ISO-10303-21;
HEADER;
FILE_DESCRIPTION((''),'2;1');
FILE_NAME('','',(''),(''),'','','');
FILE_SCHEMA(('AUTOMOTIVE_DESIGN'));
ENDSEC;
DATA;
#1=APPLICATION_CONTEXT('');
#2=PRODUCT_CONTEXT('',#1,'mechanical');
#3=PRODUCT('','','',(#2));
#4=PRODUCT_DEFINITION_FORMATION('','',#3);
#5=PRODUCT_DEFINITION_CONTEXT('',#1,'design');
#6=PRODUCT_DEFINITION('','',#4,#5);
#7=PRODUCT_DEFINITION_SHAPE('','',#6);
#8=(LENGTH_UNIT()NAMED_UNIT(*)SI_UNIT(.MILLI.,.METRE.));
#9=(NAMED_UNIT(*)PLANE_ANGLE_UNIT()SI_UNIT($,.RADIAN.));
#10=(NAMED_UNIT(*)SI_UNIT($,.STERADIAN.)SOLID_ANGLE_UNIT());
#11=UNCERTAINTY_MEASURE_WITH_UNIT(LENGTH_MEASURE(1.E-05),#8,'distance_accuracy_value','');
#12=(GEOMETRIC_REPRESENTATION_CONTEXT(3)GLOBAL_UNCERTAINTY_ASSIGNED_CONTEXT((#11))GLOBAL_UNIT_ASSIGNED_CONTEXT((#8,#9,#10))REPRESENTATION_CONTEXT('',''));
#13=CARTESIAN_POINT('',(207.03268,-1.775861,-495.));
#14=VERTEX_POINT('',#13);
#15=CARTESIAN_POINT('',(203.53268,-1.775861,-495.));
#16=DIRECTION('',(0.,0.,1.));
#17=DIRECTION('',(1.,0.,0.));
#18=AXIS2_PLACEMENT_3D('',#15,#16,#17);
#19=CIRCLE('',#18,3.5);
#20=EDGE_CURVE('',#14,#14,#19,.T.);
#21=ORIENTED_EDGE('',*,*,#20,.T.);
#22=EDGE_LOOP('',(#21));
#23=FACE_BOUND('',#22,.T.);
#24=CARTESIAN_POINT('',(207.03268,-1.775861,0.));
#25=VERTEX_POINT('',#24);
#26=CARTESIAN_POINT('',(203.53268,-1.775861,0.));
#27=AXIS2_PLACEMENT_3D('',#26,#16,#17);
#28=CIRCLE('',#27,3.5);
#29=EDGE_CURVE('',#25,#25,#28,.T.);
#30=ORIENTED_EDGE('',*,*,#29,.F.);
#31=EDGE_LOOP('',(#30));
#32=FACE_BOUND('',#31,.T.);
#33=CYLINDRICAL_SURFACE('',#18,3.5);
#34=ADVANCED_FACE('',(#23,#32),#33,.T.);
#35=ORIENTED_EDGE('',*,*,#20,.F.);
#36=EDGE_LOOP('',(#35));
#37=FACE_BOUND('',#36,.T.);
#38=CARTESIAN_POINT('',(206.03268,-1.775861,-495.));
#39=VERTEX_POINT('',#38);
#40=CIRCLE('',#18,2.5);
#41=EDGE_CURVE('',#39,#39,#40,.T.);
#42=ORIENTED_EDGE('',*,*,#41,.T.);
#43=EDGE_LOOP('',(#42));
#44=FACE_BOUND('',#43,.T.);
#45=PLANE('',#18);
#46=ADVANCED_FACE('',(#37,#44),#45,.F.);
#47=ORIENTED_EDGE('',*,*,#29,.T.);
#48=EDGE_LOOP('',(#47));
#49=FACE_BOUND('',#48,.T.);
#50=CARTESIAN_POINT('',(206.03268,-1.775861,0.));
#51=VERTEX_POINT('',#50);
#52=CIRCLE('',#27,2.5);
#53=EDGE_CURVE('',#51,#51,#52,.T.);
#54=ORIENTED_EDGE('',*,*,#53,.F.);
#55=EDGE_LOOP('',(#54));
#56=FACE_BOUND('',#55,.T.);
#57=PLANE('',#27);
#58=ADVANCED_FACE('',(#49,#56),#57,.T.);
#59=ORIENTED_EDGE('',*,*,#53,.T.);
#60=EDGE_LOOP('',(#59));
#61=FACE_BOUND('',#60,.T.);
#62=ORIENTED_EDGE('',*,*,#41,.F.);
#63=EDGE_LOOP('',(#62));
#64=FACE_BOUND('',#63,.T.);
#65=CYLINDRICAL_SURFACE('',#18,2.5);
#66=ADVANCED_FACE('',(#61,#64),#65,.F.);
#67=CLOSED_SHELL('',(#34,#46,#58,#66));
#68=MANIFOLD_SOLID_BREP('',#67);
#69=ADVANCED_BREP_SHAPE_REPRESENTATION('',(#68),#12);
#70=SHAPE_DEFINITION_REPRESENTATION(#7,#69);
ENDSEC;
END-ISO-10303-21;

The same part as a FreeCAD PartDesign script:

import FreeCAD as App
import Part
import Sketcher
Q = App.Units.Quantity

doc = App.newDocument("Part")
body = doc.addObject("PartDesign::Body", "Body")

# Sketch on XY plane
sketch1 = doc.addObject("Sketcher::SketchObject", "Sketch")
body.addObject(sketch1)
sketch1.AttachmentSupport = (doc.XY_Plane, [""])
sketch1.MapMode = "FlatFace"
sketch1.addGeometry([
    Part.Circle(App.Vector(203.5, -1.8, 0), App.Vector(0, 0, 1), 3.5),
    Part.Circle(App.Vector(203.5, -1.8, 0), App.Vector(0, 0, 1), 2.5),
], False)
sketch1.addConstraint([
    Sketcher.Constraint("Coincident", 1, 3, 0, 3),
    Sketcher.Constraint("Diameter", 0, Q("7 mm")),
    Sketcher.Constraint("Diameter", 1, Q("5 mm")),
    Sketcher.Constraint("DistanceX", -1, 1, 0, 3, Q("203.53268 mm")),
    Sketcher.Constraint("DistanceY", 0, 3, -1, 1, Q("1.775861 mm")),
])
pad1 = doc.addObject("PartDesign::Pad", "Pad")
body.addObject(pad1)
pad1.Profile = sketch1
pad1.Length = 495
pad1.Reversed = True

doc.recompute()
